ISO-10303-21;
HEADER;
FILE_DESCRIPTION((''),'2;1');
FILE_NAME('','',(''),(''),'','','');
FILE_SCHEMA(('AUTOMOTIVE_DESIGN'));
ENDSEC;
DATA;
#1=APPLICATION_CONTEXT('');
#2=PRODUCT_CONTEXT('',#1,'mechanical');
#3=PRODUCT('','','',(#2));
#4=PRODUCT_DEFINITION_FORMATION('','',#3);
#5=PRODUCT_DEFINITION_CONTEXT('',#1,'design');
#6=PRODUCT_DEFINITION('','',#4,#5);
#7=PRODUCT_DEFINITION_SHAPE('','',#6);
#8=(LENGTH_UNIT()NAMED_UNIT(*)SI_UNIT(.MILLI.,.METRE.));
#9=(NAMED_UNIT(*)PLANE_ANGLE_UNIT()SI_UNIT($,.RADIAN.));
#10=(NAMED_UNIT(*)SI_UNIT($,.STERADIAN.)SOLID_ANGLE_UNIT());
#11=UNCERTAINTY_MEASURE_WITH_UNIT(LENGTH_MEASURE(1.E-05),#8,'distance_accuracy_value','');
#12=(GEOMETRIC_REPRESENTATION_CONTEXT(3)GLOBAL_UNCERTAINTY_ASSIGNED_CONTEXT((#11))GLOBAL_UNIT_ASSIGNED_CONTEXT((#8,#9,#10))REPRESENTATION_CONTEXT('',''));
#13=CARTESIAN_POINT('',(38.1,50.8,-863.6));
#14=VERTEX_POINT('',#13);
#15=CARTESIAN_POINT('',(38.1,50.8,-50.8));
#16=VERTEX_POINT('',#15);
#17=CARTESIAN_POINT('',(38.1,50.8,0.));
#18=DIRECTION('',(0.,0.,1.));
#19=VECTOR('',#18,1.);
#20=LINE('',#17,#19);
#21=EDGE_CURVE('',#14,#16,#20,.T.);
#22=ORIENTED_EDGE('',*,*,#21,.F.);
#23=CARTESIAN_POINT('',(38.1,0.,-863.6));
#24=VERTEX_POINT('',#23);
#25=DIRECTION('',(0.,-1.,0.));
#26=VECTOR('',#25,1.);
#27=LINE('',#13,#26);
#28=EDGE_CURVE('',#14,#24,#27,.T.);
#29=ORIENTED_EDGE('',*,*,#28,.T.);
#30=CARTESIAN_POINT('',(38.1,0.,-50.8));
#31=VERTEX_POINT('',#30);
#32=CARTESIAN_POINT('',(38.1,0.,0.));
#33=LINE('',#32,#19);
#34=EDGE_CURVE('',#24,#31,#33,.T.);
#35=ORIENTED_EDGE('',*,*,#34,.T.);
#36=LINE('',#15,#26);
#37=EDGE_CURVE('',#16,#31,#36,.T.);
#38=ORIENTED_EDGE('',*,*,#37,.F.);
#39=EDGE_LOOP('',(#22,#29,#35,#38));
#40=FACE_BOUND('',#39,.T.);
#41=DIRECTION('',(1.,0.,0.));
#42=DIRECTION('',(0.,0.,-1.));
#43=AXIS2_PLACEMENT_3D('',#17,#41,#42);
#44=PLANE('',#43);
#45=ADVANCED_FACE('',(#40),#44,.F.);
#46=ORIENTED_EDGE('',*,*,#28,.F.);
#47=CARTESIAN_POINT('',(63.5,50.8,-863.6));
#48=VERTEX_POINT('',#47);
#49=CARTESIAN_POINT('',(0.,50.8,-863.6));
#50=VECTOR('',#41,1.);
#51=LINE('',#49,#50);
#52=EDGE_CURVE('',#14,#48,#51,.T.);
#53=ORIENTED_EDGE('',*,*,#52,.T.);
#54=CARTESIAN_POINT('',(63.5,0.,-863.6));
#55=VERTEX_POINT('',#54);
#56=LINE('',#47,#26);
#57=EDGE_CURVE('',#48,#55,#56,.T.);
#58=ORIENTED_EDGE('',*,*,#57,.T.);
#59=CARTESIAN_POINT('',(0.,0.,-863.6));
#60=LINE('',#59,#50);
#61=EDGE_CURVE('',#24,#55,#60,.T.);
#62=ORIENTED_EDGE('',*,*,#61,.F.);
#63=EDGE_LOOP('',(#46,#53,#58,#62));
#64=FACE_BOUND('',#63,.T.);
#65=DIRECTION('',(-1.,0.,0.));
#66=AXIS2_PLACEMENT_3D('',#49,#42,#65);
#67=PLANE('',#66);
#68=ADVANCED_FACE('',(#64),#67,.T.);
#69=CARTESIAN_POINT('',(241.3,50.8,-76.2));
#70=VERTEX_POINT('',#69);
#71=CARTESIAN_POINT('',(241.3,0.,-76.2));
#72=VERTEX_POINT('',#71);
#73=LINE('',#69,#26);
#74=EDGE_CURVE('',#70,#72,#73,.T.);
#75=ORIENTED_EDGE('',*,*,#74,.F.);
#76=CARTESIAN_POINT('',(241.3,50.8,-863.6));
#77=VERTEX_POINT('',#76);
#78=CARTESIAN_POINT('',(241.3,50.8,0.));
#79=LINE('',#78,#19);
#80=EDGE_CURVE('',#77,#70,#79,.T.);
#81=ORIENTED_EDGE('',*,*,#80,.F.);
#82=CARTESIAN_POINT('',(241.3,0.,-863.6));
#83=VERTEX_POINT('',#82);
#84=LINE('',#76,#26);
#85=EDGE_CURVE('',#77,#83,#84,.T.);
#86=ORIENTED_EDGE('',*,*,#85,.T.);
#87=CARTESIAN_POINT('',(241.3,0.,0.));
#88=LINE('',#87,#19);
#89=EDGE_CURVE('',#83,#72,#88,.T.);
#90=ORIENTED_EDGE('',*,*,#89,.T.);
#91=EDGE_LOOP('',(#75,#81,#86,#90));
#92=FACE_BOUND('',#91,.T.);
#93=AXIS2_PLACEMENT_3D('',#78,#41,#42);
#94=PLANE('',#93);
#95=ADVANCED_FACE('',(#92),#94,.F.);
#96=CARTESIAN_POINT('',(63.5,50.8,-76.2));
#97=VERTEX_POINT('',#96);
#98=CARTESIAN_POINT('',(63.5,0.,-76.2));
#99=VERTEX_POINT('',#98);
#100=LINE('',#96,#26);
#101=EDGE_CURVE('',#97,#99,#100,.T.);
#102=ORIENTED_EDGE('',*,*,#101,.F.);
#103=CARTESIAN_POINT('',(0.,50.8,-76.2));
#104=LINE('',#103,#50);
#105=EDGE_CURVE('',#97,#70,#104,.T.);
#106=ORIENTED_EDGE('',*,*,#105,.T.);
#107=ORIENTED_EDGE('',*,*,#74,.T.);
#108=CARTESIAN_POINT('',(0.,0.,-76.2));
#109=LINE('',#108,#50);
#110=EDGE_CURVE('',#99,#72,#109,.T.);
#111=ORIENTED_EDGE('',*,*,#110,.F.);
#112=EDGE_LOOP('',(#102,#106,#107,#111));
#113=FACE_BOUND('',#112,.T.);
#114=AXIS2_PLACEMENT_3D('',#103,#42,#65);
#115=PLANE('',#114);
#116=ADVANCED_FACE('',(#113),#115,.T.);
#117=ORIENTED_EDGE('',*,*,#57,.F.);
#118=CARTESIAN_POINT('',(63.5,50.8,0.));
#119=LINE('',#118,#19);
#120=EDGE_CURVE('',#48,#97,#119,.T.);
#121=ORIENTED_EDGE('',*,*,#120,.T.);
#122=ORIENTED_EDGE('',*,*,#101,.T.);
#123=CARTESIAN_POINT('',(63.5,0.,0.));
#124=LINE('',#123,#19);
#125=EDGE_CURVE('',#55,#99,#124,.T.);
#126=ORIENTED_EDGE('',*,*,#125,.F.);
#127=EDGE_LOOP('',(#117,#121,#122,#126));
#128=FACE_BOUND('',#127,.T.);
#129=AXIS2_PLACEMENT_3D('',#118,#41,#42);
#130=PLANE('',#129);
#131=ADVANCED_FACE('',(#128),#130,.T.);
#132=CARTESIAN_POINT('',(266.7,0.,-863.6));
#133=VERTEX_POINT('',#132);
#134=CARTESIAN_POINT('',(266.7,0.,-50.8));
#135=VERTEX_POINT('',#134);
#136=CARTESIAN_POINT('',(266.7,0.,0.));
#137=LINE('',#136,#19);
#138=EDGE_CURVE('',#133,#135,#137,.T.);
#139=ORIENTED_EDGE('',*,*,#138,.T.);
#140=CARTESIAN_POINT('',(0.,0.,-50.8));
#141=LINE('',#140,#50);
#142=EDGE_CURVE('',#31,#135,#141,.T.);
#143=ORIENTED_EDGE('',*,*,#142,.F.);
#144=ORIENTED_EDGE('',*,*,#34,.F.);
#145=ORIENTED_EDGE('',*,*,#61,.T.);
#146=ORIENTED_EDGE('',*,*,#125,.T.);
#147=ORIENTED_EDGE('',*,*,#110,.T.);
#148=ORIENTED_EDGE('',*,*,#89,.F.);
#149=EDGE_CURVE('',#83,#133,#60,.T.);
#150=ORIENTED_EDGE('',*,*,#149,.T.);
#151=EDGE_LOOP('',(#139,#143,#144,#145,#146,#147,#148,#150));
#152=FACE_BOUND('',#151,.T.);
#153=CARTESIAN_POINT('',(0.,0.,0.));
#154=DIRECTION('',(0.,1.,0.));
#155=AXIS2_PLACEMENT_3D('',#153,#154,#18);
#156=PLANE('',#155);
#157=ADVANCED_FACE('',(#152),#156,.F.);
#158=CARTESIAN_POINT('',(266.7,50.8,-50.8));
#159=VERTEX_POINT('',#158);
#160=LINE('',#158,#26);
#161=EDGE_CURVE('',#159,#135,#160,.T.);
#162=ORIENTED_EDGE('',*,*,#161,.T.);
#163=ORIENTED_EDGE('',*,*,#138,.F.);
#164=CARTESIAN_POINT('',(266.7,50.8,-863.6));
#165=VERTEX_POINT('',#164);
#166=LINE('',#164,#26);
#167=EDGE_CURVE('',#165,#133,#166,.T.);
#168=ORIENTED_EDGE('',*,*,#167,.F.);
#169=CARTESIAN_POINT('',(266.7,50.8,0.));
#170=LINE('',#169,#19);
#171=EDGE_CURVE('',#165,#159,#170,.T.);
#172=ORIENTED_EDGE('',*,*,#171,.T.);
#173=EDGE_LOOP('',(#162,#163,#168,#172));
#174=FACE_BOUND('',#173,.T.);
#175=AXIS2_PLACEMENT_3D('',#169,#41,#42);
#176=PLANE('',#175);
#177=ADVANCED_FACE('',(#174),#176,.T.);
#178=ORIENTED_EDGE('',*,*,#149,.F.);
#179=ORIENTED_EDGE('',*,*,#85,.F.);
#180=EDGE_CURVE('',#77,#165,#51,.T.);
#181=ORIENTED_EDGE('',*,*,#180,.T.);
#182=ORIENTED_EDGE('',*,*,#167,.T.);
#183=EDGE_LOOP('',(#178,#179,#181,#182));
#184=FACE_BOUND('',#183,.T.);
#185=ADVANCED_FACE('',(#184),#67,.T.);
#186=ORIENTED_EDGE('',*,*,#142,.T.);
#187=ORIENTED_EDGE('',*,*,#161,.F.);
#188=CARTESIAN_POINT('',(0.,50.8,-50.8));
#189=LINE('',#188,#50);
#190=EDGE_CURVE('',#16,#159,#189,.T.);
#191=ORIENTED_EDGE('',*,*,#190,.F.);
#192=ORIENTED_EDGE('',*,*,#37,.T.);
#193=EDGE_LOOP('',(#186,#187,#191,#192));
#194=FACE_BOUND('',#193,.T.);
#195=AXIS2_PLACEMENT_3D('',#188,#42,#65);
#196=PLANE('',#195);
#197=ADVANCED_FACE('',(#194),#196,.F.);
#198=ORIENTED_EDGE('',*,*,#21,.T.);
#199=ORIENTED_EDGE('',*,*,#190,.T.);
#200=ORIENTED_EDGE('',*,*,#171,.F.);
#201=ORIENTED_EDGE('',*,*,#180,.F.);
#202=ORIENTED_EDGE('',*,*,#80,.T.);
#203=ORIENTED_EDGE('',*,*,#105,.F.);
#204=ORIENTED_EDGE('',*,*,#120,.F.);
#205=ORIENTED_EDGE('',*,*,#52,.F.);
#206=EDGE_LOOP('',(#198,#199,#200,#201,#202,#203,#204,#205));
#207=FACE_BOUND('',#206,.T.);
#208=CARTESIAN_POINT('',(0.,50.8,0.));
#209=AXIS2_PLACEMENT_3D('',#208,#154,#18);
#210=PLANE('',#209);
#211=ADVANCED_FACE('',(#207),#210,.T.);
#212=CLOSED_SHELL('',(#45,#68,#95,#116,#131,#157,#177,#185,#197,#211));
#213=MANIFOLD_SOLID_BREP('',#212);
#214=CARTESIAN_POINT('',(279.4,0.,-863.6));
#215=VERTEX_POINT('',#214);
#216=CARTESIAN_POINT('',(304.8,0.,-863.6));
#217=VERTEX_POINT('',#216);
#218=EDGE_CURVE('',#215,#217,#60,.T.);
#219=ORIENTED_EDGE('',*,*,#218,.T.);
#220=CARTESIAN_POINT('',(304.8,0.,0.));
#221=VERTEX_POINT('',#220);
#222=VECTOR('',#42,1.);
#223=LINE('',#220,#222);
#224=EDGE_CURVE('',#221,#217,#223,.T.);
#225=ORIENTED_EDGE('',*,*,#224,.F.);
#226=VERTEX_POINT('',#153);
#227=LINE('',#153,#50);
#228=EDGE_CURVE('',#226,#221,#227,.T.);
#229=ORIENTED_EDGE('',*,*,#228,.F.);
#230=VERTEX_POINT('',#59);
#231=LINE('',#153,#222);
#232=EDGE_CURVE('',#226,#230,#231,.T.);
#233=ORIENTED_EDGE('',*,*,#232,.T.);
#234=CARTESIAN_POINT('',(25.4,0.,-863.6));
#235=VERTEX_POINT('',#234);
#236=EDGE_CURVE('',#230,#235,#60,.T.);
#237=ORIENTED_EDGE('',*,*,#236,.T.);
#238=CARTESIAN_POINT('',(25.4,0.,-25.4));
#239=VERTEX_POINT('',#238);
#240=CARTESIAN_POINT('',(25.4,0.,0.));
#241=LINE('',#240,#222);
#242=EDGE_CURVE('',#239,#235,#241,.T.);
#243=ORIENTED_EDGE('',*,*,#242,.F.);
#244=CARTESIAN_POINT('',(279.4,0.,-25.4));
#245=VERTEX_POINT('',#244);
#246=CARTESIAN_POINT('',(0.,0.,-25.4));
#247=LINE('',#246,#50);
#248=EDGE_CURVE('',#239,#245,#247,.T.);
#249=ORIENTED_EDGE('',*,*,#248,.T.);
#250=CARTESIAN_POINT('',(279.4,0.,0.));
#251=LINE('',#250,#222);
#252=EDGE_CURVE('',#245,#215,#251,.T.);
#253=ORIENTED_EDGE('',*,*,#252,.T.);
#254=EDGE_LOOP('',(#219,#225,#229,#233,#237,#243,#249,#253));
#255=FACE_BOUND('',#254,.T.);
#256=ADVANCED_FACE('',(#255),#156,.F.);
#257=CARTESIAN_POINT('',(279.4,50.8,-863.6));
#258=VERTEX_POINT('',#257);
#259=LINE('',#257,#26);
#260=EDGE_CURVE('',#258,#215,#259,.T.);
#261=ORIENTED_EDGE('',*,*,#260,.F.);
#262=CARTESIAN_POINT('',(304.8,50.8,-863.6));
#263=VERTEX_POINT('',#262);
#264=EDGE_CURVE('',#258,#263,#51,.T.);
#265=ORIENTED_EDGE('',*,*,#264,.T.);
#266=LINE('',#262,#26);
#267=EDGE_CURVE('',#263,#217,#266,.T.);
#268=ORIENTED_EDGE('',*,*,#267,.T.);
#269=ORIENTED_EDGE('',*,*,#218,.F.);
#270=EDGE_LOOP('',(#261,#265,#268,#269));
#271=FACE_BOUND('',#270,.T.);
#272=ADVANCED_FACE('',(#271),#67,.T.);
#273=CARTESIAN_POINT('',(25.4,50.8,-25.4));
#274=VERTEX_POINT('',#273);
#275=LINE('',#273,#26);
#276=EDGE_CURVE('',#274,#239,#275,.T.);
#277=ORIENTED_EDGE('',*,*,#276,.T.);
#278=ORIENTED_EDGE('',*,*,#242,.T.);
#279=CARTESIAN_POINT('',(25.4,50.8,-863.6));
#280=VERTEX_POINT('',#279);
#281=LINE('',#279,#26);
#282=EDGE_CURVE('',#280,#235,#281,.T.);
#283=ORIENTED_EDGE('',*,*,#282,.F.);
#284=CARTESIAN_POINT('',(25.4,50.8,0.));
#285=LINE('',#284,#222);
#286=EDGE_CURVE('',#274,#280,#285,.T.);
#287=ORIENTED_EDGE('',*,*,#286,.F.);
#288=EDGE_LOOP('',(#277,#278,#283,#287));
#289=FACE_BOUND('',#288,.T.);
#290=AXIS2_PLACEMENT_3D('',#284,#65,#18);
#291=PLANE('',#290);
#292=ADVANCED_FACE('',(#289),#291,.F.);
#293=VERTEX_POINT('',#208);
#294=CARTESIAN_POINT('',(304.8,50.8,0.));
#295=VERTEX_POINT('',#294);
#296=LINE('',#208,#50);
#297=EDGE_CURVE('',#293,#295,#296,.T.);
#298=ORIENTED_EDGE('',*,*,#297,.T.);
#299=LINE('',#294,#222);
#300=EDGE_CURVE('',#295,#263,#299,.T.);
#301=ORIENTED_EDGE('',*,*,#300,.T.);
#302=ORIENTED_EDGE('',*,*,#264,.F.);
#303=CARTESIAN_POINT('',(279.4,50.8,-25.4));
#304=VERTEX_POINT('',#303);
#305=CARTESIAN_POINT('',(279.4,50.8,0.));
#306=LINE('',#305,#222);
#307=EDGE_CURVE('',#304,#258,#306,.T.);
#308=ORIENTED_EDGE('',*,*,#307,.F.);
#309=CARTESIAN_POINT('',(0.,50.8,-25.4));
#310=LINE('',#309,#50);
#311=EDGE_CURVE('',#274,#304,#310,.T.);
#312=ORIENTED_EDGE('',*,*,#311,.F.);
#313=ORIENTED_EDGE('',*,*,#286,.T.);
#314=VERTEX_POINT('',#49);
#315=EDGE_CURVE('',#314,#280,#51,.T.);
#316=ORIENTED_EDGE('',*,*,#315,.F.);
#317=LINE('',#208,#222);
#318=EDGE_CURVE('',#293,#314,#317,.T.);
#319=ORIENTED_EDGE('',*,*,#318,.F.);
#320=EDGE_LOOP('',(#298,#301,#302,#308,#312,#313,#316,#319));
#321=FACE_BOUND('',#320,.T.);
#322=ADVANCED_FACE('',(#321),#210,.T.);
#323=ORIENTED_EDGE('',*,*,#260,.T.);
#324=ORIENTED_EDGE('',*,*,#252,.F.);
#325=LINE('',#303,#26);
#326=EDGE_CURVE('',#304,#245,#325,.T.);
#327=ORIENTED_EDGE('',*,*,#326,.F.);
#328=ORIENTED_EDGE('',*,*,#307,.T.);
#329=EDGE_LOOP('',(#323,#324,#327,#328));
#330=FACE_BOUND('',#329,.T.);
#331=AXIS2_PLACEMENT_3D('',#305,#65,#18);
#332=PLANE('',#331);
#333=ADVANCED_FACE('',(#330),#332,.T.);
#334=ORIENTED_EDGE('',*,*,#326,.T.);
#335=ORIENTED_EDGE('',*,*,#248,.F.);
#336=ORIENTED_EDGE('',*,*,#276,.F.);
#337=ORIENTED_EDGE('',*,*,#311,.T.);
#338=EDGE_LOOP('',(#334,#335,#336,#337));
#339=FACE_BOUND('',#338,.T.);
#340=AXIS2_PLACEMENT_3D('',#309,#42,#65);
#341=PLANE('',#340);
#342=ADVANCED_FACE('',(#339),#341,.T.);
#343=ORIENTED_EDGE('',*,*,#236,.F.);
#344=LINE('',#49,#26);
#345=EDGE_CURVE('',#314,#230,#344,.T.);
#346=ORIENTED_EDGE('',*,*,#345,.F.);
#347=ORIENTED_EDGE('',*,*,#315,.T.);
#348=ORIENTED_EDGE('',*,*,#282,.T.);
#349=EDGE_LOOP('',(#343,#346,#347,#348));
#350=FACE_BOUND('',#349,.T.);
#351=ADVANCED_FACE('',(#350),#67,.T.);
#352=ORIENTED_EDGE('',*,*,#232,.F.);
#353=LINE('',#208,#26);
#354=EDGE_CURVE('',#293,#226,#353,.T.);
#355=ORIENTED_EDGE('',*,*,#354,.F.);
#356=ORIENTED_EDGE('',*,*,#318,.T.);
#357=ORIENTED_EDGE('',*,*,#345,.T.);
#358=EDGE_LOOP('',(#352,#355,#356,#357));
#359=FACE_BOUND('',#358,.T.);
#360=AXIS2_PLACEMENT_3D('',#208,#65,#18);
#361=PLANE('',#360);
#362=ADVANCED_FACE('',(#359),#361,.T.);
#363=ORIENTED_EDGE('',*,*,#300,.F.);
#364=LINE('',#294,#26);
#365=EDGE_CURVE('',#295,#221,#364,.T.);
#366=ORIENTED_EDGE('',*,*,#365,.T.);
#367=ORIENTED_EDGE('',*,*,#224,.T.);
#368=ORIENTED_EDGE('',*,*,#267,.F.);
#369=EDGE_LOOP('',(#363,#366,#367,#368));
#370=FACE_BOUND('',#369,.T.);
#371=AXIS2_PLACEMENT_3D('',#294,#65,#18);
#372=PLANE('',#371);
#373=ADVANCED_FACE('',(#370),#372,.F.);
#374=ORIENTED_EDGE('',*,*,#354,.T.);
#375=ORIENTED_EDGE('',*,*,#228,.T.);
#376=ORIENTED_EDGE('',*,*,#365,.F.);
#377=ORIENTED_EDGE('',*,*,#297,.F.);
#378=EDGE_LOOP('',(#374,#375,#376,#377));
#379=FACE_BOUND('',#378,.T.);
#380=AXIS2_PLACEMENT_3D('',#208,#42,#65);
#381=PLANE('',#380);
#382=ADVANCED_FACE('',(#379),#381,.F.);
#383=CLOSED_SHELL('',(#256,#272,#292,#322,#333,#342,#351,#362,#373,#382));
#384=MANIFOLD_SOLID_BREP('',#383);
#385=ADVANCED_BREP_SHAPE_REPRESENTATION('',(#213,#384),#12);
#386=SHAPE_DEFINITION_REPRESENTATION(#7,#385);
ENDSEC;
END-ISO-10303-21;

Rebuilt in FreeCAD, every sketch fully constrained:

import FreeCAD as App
import Part
import Sketcher

V = App.Vector
Q = App.Units.Quantity


def add_polygon(sketch, points):
    """Adds a closed chain of lines whose ends are joined by coincident constraints."""
    first, n = sketch.GeometryCount, len(points)
    for a, b in zip(points, points[1:] + points[:1]):
        sketch.addGeometry(Part.LineSegment(App.Vector(*a, 0), App.Vector(*b, 0)), False)
    for i in range(n):
        sketch.addConstraint(Sketcher.Constraint("Coincident", first + i, 2, first + (i + 1) % n, 1))

doc = App.newDocument("Part")
params = doc.addObject("Spreadsheet::Sheet", "Params")
for row, (alias, value) in enumerate([
    ("sketch1_width", "12 in"),
    ("sketch1_width2", "1 in"),
    ("sketch1_height", "34 in"),
    ("sketch1_height2", "33 in"),
    ("pad1_length", "2 in"),
    ("sketch2_width", "9 in"),
    ("sketch2_width2", "1 in"),
    ("sketch2_height", "32 in"),
    ("sketch2_height2", "31 in"),
    ("pad2_length", "2 in"),
], start=1):
    params.set(f"A{row}", alias)
    params.set(f"B{row}", "=" + value)
    params.setAlias(f"B{row}", alias)

body = doc.addObject("PartDesign::Body", "Body")

# Sketch on XZ plane
sketch1 = body.newObject("Sketcher::SketchObject", "Sketch")
sketch1.AttachmentSupport = (doc.getObject("XZ_Plane"), [""])
sketch1.MapMode = "FlatFace"
add_polygon(sketch1, [(0, 0), (305, 0), (305, -864), (279, -864), (279, -25), (25, -25), (25, -864), (0, -864)])  # lines 0-7
sketch1.addConstraint([
    Sketcher.Constraint("Horizontal", 0),
    Sketcher.Constraint("Vertical", 1),
    Sketcher.Constraint("Horizontal", 2),
    Sketcher.Constraint("Vertical", 3),
    Sketcher.Constraint("Horizontal", 4),
    Sketcher.Constraint("Vertical", 5),
    Sketcher.Constraint("Horizontal", 6),
    Sketcher.Constraint("Vertical", 7),
    Sketcher.Constraint("Coincident", 7, 2, -1, 1),
    Sketcher.Constraint("Horizontal", 2, 2, 5, 2),
    Sketcher.Constraint("Equal", 2, 6),
    Sketcher.Constraint("DistanceX", 0, 1, 0, 2, Q("12 in")),
    Sketcher.Constraint("DistanceX", 2, 2, 2, 1, Q("1 in")),
    Sketcher.Constraint("DistanceY", 1, 2, 1, 1, Q("34 in")),
    Sketcher.Constraint("DistanceY", 3, 1, 3, 2, Q("33 in")),
])
sketch1.setExpression("Constraints[19]", "Params.sketch1_width")
sketch1.setExpression("Constraints[20]", "Params.sketch1_width2")
sketch1.setExpression("Constraints[21]", "Params.sketch1_height")
sketch1.setExpression("Constraints[22]", "Params.sketch1_height2")
pad1 = body.newObject("PartDesign::Pad", "Pad")
pad1.Profile = sketch1
pad1.setExpression("Length", "Params.pad1_length")
pad1.Reversed = True
body2 = doc.addObject("PartDesign::Body", "Body001")

# Sketch on XZ plane
sketch2 = body2.newObject("Sketcher::SketchObject", "Sketch001")
sketch2.AttachmentSupport = (doc.getObject("XZ_Plane001"), [""])
sketch2.MapMode = "FlatFace"
add_polygon(sketch2, [(38, -864), (38, -51), (267, -51), (267, -864), (241, -864), (241, -76), (64, -76), (64, -864)])  # lines 0-7
sketch2.addConstraint([
    Sketcher.Constraint("Vertical", 0),
    Sketcher.Constraint("Horizontal", 1),
    Sketcher.Constraint("Vertical", 2),
    Sketcher.Constraint("Horizontal", 3),
    Sketcher.Constraint("Vertical", 4),
    Sketcher.Constraint("Horizontal", 5),
    Sketcher.Constraint("Vertical", 6),
    Sketcher.Constraint("Horizontal", 7),
    Sketcher.Constraint("Horizontal", 3, 2, 6, 2),
    Sketcher.Constraint("Equal", 3, 7),
    Sketcher.Constraint("DistanceX", 1, 1, 1, 2, Q("9 in")),
    Sketcher.Constraint("DistanceX", 3, 2, 3, 1, Q("1 in")),
    Sketcher.Constraint("DistanceY", 0, 1, 0, 2, Q("32 in")),
    Sketcher.Constraint("DistanceY", 4, 1, 4, 2, Q("31 in")),
    Sketcher.Constraint("DistanceY", 0, 2, -1, 1, Q("2 in")),
    Sketcher.Constraint("DistanceX", -1, 1, 0, 2, Q("1.5 in")),
])
sketch2.setExpression("Constraints[18]", "Params.sketch2_width")
sketch2.setExpression("Constraints[19]", "Params.sketch2_width2")
sketch2.setExpression("Constraints[20]", "Params.sketch2_height")
sketch2.setExpression("Constraints[21]", "Params.sketch2_height2")
pad2 = body2.newObject("PartDesign::Pad", "Pad001")
pad2.Profile = sketch2
pad2.setExpression("Length", "Params.pad2_length")
pad2.Reversed = True

doc.recompute()
